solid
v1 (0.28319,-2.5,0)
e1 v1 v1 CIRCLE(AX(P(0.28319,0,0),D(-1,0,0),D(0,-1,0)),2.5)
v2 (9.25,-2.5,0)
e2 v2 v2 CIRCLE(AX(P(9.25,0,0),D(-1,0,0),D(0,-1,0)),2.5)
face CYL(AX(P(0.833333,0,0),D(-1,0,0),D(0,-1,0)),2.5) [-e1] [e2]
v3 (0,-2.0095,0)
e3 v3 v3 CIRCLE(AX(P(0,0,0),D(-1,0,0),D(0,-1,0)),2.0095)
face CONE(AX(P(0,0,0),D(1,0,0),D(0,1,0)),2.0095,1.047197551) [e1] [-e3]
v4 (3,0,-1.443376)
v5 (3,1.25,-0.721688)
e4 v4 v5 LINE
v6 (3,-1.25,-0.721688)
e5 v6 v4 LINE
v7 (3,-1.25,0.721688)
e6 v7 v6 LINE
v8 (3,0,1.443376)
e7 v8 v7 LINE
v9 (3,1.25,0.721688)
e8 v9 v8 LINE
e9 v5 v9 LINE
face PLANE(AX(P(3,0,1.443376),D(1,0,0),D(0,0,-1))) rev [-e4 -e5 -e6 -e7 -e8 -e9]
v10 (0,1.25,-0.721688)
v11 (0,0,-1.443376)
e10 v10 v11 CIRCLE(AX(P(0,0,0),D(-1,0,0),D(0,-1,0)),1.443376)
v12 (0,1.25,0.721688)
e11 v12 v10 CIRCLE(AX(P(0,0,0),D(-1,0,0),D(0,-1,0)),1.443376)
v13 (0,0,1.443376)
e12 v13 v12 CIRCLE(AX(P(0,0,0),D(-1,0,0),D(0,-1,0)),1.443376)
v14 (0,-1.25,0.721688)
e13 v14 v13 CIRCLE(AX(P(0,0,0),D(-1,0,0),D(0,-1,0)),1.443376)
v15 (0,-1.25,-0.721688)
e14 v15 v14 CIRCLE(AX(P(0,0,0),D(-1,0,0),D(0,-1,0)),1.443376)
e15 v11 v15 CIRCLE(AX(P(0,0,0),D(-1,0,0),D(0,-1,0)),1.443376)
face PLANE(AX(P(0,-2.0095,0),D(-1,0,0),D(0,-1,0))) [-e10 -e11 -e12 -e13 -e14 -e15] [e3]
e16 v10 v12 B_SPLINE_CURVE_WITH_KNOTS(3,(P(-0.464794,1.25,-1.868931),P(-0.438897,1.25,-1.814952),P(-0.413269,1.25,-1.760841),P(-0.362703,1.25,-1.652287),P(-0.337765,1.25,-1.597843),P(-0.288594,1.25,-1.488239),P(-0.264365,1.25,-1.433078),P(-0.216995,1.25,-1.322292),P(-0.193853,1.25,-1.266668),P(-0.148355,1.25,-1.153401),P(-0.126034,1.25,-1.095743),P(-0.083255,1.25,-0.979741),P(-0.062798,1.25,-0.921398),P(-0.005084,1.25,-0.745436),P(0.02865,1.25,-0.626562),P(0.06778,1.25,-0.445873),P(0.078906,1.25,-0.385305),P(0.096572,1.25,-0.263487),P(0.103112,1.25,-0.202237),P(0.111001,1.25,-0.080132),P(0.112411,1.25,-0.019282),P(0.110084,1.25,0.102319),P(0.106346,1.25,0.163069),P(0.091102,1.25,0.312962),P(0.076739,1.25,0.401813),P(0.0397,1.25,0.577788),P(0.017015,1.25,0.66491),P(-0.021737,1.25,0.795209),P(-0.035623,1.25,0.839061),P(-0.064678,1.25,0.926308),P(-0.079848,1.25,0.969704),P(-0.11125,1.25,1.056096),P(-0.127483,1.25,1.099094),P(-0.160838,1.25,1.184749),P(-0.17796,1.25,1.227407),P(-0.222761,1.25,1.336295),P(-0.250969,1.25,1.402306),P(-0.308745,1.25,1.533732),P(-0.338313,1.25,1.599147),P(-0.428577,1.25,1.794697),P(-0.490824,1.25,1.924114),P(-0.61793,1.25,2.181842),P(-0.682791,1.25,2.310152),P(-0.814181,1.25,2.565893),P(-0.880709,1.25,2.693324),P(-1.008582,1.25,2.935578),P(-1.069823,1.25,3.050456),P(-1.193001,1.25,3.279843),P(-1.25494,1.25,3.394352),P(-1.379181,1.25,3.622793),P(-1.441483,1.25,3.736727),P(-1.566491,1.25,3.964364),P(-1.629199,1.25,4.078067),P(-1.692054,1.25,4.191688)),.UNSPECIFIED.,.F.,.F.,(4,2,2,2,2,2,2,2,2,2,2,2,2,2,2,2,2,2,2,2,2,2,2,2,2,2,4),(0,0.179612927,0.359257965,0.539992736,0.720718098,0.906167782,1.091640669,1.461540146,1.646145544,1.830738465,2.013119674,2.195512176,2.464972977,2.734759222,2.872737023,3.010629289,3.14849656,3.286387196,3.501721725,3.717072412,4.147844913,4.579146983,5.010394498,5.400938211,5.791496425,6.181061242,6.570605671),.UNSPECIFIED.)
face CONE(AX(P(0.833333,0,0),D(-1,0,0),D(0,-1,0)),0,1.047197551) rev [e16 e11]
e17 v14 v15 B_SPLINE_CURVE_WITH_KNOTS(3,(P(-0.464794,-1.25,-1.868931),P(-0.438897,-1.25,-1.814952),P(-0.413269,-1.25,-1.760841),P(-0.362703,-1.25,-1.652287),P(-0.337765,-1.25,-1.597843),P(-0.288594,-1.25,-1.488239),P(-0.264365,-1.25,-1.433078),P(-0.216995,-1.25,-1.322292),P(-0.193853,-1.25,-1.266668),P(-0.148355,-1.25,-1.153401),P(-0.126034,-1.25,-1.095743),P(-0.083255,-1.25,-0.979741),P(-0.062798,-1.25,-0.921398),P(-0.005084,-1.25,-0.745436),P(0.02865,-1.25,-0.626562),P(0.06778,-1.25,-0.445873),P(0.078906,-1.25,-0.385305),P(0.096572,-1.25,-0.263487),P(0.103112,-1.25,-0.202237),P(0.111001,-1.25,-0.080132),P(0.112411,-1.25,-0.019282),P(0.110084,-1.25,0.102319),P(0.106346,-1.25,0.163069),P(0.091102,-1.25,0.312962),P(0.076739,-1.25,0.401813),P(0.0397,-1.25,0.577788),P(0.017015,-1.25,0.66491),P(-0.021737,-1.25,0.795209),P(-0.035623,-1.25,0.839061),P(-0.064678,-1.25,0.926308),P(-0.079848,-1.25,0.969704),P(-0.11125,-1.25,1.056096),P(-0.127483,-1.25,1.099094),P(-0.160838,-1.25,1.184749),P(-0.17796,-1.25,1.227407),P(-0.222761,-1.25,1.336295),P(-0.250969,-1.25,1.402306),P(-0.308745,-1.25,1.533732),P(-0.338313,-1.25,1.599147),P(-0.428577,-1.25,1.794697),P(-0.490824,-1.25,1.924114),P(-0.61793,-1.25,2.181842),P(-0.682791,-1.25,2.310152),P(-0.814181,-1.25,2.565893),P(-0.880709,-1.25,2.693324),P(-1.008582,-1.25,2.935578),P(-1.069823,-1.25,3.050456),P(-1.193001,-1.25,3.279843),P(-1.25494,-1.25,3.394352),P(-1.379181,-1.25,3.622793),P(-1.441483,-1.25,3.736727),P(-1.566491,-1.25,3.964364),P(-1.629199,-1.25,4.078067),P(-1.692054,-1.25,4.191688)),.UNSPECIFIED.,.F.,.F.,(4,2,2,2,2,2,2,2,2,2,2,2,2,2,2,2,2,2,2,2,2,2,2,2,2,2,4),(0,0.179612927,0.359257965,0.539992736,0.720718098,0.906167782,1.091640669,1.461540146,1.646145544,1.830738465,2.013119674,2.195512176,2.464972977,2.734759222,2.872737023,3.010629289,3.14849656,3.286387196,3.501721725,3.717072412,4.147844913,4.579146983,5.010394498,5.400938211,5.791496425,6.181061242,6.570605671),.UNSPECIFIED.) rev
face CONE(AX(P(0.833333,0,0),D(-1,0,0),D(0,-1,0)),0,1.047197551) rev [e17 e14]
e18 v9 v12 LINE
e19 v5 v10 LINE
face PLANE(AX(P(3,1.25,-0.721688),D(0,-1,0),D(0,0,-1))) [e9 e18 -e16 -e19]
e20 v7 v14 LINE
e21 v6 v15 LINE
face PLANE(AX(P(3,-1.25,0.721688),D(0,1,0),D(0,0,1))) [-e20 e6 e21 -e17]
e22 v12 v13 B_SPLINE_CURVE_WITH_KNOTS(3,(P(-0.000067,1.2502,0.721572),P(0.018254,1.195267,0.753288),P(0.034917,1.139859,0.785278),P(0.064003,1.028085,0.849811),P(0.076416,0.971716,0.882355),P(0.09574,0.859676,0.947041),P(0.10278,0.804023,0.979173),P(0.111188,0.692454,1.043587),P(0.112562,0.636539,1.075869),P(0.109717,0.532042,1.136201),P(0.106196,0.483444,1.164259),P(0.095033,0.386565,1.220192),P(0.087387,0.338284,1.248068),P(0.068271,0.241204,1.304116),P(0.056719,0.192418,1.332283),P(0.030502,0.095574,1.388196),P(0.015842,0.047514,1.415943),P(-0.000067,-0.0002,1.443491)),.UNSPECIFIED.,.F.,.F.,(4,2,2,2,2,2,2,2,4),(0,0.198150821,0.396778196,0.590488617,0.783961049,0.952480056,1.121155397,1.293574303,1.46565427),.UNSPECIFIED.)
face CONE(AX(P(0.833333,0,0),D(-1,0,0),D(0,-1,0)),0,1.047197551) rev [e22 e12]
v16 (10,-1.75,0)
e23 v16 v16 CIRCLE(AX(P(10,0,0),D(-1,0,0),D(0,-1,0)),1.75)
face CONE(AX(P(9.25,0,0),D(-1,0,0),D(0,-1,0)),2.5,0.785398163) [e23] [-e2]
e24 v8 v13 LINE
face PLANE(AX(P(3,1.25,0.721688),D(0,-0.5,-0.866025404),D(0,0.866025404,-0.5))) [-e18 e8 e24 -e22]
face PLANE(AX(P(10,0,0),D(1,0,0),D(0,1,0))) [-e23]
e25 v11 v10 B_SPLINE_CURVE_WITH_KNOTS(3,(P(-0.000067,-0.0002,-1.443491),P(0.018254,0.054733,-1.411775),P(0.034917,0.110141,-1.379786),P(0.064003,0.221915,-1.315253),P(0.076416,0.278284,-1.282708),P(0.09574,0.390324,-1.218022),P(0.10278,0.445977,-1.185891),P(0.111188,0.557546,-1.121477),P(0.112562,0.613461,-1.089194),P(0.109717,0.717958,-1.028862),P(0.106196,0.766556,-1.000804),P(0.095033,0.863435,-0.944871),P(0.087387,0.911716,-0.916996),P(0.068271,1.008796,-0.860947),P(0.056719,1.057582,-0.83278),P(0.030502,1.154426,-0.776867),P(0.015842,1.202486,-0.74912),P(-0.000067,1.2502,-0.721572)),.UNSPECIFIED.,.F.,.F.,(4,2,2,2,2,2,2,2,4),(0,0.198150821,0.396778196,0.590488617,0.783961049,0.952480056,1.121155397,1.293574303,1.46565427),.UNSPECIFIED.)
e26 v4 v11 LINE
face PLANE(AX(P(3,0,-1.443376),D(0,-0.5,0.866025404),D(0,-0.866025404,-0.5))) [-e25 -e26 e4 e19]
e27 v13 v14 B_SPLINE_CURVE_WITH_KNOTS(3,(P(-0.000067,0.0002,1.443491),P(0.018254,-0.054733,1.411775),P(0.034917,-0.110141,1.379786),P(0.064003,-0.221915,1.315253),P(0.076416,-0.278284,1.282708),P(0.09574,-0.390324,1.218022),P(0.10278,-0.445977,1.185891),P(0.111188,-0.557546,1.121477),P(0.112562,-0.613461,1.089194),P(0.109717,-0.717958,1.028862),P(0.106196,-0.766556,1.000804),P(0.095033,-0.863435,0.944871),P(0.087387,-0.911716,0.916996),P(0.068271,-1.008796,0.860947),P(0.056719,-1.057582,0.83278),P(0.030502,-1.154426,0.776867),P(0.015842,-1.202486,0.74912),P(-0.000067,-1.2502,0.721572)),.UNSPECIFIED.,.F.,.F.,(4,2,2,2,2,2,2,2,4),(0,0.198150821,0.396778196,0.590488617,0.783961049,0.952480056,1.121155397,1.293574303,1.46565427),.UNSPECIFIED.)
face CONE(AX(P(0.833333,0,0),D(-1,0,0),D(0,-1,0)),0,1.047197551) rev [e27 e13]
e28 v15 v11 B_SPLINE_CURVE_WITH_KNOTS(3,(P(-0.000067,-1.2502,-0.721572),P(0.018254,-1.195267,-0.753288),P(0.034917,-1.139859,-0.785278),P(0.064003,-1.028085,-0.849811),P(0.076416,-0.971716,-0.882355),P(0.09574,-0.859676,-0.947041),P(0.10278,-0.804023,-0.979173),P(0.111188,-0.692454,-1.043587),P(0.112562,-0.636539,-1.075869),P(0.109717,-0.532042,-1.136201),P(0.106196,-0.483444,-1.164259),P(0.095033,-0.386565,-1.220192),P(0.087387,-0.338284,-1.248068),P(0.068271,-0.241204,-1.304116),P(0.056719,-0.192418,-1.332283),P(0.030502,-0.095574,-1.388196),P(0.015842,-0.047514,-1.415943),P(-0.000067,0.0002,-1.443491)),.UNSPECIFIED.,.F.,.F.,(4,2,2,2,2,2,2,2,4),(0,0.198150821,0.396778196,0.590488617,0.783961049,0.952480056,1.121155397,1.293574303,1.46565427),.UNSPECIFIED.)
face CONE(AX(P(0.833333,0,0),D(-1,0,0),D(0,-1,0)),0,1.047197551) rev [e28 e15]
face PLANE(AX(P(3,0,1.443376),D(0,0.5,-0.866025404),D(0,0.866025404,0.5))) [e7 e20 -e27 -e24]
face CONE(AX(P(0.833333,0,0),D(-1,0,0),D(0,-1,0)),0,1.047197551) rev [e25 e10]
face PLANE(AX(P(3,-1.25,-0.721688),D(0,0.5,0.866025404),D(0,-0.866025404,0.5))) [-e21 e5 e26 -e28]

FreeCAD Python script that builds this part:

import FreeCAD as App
import Part
import Sketcher

V = App.Vector
Q = App.Units.Quantity

doc = App.newDocument("Part")
body = doc.addObject("PartDesign::Body", "Body")

sketch1 = body.newObject("Sketcher::SketchObject", "Sketch")
sketch1.AttachmentSupport = (doc.getObject("XY_Plane"), [""])
sketch1.MapMode = "FlatFace"
sketch1.addGeometry([
    Part.LineSegment(V(10, -1.8, 0), V(10, 0, 0)),
    Part.LineSegment(V(10, 0, 0), V(0.8, 0, 0)),
    Part.LineSegment(V(0.8, 0, 0), V(0, -1.4, 0)),
    Part.LineSegment(V(0, -1.4, 0), V(0, -2, 0)),
    Part.LineSegment(V(0, -2, 0), V(0.3, -2.5, 0)),
    Part.LineSegment(V(0.3, -2.5, 0), V(9.2, -2.5, 0)),
    Part.LineSegment(V(9.2, -2.5, 0), V(10, -1.8, 0)),
], False)
sketch1.addConstraint([
    Sketcher.Constraint("Coincident", 0, 2, 1, 1),
    Sketcher.Constraint("Coincident", 1, 2, 2, 1),
    Sketcher.Constraint("Coincident", 2, 2, 3, 1),
    Sketcher.Constraint("Coincident", 3, 2, 4, 1),
    Sketcher.Constraint("Coincident", 4, 2, 5, 1),
    Sketcher.Constraint("Coincident", 5, 2, 6, 1),
    Sketcher.Constraint("Coincident", 6, 2, 0, 1),
    Sketcher.Constraint("Vertical", 0),
    Sketcher.Constraint("Horizontal", 1),
    Sketcher.Constraint("Vertical", 3),
    Sketcher.Constraint("Horizontal", 5),
    Sketcher.Constraint("PointOnObject", 0, 2, -1),
    Sketcher.Constraint("PointOnObject", 2, 2, -2),
    Sketcher.Constraint("Angle", 2, Q("-120 deg")),
    Sketcher.Constraint("Angle", 4, Q("-60 deg")),
    Sketcher.Constraint("Angle", 6, Q("45 deg")),
    Sketcher.Constraint("DistanceX", -1, 1, 0, 2, Q("10 mm")),
    Sketcher.Constraint("DistanceY", 0, 1, 0, 2, Q("1.75 mm")),
    Sketcher.Constraint("DistanceY", 4, 2, -1, 1, Q("2.5 mm")),
    Sketcher.Constraint("DistanceX", 5, 1, 5, 2, Q("8.96681 mm")),
    Sketcher.Constraint("DistanceX", 1, 2, 1, 1, Q("9.166667 mm")),
])
revolution = body.newObject("PartDesign::Revolution", "Revolution")
revolution.Profile = sketch1
revolution.ReferenceAxis = (sketch1, ["H_Axis"])
revolution.Angle = 360

sketch2 = body.newObject("Sketcher::SketchObject", "Sketch001")
sketch2.AttachmentSupport = (doc.getObject("YZ_Plane"), [""])
sketch2.MapMode = "FlatFace"
sketch2.addGeometry([
    Part.LineSegment(V(0, 1.4, 0), V(-1.2, 0.7, 0)),
    Part.LineSegment(V(-1.2, 0.7, 0), V(-1.2, -0.7, 0)),
    Part.LineSegment(V(-1.2, -0.7, 0), V(0, -1.4, 0)),
    Part.LineSegment(V(0, -1.4, 0), V(1.2, -0.7, 0)),
    Part.LineSegment(V(1.2, -0.7, 0), V(1.2, 0.7, 0)),
    Part.LineSegment(V(1.2, 0.7, 0), V(0, 1.4, 0)),
], False)
sketch2.addConstraint([
    Sketcher.Constraint("Coincident", 0, 2, 1, 1),
    Sketcher.Constraint("Coincident", 1, 2, 2, 1),
    Sketcher.Constraint("Coincident", 2, 2, 3, 1),
    Sketcher.Constraint("Coincident", 3, 2, 4, 1),
    Sketcher.Constraint("Coincident", 4, 2, 5, 1),
    Sketcher.Constraint("Coincident", 5, 2, 0, 1),
    Sketcher.Constraint("Vertical", 1),
    Sketcher.Constraint("Vertical", 4),
    Sketcher.Constraint("Symmetric", 0, 2, 3, 2, -1, 1),
    Sketcher.Constraint("Symmetric", 2, 2, 5, 2, -1, 1),
    Sketcher.Constraint("PointOnObject", 2, 2, -2),
    Sketcher.Constraint("Parallel", 2, 5),
    Sketcher.Constraint("Horizontal", 1, 2, 3, 2),
    Sketcher.Constraint("Angle", 0, Q("-150 deg")),
    Sketcher.Constraint("DistanceX", 1, 2, 3, 2, Q("2.5 mm")),
    Sketcher.Constraint("DistanceY", 1, 2, 1, 1, Q("1.443376 mm")),
])
pocket1 = body.newObject("PartDesign::Pocket", "Pocket")
pocket1.Profile = sketch2
pocket1.Length = 3
pocket1.Reversed = True

doc.recompute()
